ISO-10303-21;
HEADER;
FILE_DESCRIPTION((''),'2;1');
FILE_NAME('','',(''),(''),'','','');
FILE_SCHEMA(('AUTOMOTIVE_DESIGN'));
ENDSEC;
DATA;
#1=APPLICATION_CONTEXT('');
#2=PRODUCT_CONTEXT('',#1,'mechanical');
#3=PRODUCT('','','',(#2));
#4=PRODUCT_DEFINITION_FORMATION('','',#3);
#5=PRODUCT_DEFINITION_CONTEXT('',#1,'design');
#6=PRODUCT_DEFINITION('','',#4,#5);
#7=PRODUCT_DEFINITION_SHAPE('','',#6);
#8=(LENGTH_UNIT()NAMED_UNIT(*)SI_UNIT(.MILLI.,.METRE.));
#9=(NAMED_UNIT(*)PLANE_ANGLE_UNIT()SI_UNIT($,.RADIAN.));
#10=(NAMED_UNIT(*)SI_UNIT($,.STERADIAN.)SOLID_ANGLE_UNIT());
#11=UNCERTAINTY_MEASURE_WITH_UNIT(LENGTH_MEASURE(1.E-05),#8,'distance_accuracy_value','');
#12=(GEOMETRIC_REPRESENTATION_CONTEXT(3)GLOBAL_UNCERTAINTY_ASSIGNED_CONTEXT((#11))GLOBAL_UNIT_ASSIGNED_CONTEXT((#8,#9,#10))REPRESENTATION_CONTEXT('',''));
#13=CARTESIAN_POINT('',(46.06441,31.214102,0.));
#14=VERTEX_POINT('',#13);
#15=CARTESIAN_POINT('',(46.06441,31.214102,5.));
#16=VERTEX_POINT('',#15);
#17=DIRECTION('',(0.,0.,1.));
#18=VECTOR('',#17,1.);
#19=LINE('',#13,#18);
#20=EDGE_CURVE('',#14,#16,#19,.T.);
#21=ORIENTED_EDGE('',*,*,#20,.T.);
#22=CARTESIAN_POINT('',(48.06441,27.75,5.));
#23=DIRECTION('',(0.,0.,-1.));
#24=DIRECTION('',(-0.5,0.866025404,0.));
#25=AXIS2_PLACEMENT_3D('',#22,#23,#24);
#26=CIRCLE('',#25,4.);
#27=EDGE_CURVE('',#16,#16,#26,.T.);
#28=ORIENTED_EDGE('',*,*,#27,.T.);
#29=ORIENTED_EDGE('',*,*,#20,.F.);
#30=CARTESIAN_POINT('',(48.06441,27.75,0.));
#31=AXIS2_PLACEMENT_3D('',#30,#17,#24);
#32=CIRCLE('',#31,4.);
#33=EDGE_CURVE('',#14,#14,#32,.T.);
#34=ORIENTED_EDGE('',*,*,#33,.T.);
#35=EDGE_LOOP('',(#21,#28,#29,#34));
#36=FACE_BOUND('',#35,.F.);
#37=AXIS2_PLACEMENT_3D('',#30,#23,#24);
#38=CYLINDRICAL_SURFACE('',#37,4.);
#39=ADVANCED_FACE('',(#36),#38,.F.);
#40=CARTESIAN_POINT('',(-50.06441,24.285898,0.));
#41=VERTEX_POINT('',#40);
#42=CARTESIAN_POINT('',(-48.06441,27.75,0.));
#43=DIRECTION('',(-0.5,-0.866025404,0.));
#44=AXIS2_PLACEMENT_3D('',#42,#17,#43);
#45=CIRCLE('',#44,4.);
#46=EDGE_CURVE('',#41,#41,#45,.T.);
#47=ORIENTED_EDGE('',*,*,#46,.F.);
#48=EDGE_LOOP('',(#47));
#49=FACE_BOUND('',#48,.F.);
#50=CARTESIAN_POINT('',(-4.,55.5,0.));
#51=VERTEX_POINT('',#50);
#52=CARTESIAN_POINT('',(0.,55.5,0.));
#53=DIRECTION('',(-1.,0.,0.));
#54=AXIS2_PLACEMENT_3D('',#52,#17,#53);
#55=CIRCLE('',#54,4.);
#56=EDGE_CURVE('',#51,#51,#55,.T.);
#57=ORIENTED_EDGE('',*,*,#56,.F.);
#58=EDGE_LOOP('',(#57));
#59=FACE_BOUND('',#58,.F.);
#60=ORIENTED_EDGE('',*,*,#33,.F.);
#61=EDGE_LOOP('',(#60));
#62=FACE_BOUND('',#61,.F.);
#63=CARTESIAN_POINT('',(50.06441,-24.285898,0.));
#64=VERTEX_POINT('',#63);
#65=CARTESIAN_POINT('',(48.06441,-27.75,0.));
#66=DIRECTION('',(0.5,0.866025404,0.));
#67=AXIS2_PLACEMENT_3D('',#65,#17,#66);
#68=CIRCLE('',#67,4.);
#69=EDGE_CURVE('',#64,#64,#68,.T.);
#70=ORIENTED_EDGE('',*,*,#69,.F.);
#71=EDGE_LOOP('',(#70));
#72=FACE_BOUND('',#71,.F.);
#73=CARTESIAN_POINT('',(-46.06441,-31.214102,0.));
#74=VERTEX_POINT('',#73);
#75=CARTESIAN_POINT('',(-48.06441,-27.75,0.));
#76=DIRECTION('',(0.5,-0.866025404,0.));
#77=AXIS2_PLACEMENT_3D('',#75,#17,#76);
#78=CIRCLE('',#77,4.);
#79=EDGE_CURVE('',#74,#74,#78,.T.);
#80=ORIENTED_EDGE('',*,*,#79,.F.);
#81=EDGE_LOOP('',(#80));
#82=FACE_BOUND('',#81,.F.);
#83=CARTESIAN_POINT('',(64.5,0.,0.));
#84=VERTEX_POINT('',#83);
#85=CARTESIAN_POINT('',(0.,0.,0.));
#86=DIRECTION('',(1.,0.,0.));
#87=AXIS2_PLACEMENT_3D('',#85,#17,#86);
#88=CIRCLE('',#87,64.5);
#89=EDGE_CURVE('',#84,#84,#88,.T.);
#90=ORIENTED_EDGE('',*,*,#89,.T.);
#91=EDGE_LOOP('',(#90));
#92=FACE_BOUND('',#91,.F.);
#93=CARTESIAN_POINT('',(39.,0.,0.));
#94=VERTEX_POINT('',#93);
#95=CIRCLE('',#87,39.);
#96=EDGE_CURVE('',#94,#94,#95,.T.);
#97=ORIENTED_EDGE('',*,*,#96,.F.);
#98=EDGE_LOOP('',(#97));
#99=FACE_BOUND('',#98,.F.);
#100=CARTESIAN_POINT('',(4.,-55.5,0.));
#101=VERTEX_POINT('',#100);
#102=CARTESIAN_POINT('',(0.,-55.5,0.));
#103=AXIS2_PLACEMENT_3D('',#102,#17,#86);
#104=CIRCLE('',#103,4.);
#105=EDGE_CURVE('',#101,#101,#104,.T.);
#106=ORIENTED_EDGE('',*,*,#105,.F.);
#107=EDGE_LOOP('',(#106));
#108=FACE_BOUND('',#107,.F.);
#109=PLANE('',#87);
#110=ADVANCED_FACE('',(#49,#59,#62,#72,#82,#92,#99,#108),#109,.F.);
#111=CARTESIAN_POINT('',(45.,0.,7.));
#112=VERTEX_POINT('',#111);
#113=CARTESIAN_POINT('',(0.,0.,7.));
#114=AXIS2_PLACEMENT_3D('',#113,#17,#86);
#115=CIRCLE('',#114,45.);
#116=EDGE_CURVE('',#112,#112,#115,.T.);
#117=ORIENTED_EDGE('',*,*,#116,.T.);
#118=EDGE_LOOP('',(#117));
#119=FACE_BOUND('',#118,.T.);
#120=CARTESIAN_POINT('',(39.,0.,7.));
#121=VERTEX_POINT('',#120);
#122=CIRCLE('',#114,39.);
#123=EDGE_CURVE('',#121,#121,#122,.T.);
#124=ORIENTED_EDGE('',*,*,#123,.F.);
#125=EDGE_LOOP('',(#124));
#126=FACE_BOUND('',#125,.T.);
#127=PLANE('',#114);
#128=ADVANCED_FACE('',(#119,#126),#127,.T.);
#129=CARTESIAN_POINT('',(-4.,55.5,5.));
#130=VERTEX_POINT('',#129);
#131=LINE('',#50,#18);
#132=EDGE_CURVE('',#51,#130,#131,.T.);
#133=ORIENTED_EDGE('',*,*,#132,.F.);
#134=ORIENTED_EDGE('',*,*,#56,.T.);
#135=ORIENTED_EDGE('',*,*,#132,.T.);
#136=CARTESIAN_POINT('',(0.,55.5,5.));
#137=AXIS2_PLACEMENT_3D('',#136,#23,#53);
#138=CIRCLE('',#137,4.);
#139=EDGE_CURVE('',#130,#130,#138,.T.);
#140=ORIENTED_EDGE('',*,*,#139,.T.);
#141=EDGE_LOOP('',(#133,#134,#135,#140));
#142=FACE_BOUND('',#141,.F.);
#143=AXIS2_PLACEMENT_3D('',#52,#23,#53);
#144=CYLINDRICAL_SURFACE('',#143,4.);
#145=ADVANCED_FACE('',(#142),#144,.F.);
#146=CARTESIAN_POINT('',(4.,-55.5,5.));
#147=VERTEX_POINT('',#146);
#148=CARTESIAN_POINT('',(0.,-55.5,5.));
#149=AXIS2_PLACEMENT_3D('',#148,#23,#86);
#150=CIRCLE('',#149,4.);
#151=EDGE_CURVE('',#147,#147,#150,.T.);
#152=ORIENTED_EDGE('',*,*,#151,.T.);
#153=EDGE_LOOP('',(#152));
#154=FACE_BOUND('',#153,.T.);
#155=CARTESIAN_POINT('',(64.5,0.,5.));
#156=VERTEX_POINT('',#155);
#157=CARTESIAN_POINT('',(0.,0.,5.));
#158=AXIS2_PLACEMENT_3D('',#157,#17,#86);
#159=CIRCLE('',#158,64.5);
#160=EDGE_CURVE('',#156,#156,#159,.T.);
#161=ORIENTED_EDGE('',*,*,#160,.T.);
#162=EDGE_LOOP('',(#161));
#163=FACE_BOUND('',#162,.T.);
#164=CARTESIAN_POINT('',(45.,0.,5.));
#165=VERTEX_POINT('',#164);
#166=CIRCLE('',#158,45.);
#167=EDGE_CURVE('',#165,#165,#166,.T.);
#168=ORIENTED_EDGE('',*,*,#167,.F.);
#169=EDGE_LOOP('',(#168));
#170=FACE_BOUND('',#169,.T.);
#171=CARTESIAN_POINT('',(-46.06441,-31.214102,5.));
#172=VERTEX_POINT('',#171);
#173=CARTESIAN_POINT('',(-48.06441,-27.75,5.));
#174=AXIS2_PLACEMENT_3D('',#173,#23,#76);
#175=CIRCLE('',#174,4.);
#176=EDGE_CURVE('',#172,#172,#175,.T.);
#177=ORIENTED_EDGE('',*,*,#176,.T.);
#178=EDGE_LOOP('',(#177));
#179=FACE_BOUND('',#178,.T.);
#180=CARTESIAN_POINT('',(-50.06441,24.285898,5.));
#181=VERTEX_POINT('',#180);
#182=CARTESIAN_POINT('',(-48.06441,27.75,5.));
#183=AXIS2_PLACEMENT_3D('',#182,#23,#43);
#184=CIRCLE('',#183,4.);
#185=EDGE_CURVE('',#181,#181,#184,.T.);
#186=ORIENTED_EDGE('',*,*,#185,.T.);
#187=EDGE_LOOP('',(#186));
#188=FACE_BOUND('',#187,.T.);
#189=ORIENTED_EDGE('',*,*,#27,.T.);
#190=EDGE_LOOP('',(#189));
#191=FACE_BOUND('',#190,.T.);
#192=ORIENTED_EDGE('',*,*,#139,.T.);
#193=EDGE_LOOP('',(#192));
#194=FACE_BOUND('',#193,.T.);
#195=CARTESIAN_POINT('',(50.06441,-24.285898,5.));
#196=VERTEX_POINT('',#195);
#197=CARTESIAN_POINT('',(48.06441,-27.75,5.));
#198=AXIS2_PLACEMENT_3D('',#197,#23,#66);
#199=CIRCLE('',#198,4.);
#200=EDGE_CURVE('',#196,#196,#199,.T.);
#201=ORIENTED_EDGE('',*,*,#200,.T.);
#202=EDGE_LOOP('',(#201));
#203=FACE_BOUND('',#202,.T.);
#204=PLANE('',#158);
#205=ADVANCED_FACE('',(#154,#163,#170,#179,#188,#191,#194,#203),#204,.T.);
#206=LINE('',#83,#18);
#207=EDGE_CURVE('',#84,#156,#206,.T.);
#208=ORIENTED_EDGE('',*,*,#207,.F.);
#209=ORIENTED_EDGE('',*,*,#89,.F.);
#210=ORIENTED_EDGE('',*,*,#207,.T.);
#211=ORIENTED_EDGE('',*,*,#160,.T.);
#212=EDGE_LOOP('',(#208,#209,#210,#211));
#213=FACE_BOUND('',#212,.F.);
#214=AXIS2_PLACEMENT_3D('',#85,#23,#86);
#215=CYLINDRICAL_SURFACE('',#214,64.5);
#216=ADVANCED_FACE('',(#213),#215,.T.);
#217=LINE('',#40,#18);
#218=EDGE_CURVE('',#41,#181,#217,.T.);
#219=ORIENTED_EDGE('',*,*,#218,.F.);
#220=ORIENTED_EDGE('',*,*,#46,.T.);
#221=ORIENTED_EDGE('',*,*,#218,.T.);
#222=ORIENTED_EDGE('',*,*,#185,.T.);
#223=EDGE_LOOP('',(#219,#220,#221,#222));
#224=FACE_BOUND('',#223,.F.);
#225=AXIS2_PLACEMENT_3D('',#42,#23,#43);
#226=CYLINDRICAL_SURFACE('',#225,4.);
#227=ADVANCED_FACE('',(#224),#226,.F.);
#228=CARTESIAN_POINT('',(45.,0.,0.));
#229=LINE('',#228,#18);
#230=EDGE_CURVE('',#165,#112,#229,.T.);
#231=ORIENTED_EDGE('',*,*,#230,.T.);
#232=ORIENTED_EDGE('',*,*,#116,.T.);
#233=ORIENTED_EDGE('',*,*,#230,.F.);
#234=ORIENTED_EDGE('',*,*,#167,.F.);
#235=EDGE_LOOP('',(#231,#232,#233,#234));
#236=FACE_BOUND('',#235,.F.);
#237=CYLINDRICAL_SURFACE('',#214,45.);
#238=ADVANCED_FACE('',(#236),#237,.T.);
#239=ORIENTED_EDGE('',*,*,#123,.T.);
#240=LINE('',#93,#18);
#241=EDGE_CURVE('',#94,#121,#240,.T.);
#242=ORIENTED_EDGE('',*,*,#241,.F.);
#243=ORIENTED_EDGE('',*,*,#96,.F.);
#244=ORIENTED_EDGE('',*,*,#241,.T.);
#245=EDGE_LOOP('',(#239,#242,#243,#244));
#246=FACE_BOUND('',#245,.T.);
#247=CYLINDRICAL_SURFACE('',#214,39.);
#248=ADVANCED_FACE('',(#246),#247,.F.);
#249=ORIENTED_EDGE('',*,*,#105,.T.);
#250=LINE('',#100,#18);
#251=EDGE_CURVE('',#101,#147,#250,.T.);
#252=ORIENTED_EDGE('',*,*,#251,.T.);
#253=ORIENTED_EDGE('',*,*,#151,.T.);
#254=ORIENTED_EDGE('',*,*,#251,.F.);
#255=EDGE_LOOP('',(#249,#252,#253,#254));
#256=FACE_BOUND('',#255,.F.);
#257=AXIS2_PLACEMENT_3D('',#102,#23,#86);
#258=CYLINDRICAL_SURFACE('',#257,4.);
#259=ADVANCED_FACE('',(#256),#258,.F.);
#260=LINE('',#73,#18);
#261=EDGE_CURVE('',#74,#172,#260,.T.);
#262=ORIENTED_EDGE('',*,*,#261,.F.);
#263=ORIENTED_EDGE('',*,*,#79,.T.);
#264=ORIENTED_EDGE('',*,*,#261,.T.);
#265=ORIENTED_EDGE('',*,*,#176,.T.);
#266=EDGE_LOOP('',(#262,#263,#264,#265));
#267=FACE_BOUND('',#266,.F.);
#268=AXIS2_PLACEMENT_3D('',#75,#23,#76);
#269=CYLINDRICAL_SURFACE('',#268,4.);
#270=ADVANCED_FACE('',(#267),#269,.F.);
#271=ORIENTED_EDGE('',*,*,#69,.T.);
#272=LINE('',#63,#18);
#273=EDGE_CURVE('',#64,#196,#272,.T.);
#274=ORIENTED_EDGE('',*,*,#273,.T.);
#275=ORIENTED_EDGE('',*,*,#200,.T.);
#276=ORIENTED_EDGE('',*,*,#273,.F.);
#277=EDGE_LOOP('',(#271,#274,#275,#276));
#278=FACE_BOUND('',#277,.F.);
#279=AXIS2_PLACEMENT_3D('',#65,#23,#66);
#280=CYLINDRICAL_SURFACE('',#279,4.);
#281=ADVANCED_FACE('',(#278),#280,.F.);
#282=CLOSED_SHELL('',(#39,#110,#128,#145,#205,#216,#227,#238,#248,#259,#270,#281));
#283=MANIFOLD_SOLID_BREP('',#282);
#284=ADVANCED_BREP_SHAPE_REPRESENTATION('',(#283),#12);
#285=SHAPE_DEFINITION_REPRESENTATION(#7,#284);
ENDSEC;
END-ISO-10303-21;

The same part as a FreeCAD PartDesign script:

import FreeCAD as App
import Part
import Sketcher
Q = App.Units.Quantity

doc = App.newDocument("Part")
params = doc.addObject("Spreadsheet::Sheet", "Params")
for row, (alias, value) in enumerate([
    ("sketch1_diameter", "129 mm"),
    ("sketch1_diameter2", "90 mm"),
    ("pad1_length", "5 mm"),
    ("sketch2_diameter", "90 mm"),
    ("sketch2_diameter2", "78 mm"),
    ("pad2_length", "7 mm"),
    ("sketch3_diameter", "8 mm"),
], start=1):
    params.set(f"A{row}", alias)
    params.set(f"B{row}", "=" + value)
    params.setAlias(f"B{row}", alias)

body = doc.addObject("PartDesign::Body", "Body")

# Sketch on XY plane
sketch1 = body.newObject("Sketcher::SketchObject", "Sketch")
sketch1.AttachmentSupport = (doc.getObject("XY_Plane"), [""])
sketch1.MapMode = "FlatFace"
sketch1.addGeometry(Part.Circle(App.Vector(0, 0, 0), App.Vector(0, 0, 1), 64), False)
sketch1.addGeometry(Part.Circle(App.Vector(0, 0, 0), App.Vector(0, 0, 1), 45), False)
sketch1.addConstraint(Sketcher.Constraint("Coincident", 0, 3, -1, 1))
sketch1.addConstraint(Sketcher.Constraint("Coincident", 1, 3, -1, 1))
sketch1.addConstraint(Sketcher.Constraint("Diameter", 0, Q("129 mm")))
sketch1.addConstraint(Sketcher.Constraint("Diameter", 1, Q("90 mm")))
sketch1.setExpression("Constraints[2]", "Params.sketch1_diameter")
sketch1.setExpression("Constraints[3]", "Params.sketch1_diameter2")
pad1 = body.newObject("PartDesign::Pad", "Pad")
pad1.Profile = sketch1
pad1.setExpression("Length", "Params.pad1_length")

# Sketch on XY plane
sketch2 = body.newObject("Sketcher::SketchObject", "Sketch001")
sketch2.AttachmentSupport = (doc.getObject("XY_Plane"), [""])
sketch2.MapMode = "FlatFace"
sketch2.addGeometry(Part.Circle(App.Vector(0, 0, 0), App.Vector(0, 0, 1), 45), False)
sketch2.addGeometry(Part.Circle(App.Vector(0, 0, 0), App.Vector(0, 0, 1), 39), False)
sketch2.addConstraint(Sketcher.Constraint("Coincident", 0, 3, -1, 1))
sketch2.addConstraint(Sketcher.Constraint("Coincident", 1, 3, -1, 1))
sketch2.addConstraint(Sketcher.Constraint("Diameter", 0, Q("90 mm")))
sketch2.addConstraint(Sketcher.Constraint("Diameter", 1, Q("78 mm")))
sketch2.setExpression("Constraints[2]", "Params.sketch2_diameter")
sketch2.setExpression("Constraints[3]", "Params.sketch2_diameter2")
pad2 = body.newObject("PartDesign::Pad", "Pad001")
pad2.Profile = sketch2
pad2.setExpression("Length", "Params.pad2_length")

# Sketch on XY plane
sketch3 = body.newObject("Sketcher::SketchObject", "Sketch002")
sketch3.AttachmentSupport = (doc.getObject("XY_Plane"), [""])
sketch3.MapMode = "FlatFace"
sketch3.addGeometry(Part.Circle(App.Vector(0, 55.5, 0), App.Vector(0, 0, 1), 4), False)
sketch3.addConstraint(Sketcher.Constraint("PointOnObject", 0, 3, -2))
sketch3.addConstraint(Sketcher.Constraint("Diameter", 0, Q("8 mm")))
sketch3.addConstraint(Sketcher.Constraint("DistanceY", -1, 1, 0, 3, Q("55.5 mm")))
sketch3.setExpression("Constraints[1]", "Params.sketch3_diameter")
pocket1 = body.newObject("PartDesign::Pocket", "Pocket")
pocket1.Profile = sketch3
pocket1.Type = "ThroughAll"
pocket1.Reversed = True
doc.recompute()

polarpattern = body.newObject("PartDesign::PolarPattern", "PolarPattern")
polarpattern.Originals = [pocket1]
polarpattern.Axis = (doc.getObject("Z_Axis"), [""])
polarpattern.Angle = 360
polarpattern.Occurrences = 6
body.Tip = polarpattern

doc.recompute()
